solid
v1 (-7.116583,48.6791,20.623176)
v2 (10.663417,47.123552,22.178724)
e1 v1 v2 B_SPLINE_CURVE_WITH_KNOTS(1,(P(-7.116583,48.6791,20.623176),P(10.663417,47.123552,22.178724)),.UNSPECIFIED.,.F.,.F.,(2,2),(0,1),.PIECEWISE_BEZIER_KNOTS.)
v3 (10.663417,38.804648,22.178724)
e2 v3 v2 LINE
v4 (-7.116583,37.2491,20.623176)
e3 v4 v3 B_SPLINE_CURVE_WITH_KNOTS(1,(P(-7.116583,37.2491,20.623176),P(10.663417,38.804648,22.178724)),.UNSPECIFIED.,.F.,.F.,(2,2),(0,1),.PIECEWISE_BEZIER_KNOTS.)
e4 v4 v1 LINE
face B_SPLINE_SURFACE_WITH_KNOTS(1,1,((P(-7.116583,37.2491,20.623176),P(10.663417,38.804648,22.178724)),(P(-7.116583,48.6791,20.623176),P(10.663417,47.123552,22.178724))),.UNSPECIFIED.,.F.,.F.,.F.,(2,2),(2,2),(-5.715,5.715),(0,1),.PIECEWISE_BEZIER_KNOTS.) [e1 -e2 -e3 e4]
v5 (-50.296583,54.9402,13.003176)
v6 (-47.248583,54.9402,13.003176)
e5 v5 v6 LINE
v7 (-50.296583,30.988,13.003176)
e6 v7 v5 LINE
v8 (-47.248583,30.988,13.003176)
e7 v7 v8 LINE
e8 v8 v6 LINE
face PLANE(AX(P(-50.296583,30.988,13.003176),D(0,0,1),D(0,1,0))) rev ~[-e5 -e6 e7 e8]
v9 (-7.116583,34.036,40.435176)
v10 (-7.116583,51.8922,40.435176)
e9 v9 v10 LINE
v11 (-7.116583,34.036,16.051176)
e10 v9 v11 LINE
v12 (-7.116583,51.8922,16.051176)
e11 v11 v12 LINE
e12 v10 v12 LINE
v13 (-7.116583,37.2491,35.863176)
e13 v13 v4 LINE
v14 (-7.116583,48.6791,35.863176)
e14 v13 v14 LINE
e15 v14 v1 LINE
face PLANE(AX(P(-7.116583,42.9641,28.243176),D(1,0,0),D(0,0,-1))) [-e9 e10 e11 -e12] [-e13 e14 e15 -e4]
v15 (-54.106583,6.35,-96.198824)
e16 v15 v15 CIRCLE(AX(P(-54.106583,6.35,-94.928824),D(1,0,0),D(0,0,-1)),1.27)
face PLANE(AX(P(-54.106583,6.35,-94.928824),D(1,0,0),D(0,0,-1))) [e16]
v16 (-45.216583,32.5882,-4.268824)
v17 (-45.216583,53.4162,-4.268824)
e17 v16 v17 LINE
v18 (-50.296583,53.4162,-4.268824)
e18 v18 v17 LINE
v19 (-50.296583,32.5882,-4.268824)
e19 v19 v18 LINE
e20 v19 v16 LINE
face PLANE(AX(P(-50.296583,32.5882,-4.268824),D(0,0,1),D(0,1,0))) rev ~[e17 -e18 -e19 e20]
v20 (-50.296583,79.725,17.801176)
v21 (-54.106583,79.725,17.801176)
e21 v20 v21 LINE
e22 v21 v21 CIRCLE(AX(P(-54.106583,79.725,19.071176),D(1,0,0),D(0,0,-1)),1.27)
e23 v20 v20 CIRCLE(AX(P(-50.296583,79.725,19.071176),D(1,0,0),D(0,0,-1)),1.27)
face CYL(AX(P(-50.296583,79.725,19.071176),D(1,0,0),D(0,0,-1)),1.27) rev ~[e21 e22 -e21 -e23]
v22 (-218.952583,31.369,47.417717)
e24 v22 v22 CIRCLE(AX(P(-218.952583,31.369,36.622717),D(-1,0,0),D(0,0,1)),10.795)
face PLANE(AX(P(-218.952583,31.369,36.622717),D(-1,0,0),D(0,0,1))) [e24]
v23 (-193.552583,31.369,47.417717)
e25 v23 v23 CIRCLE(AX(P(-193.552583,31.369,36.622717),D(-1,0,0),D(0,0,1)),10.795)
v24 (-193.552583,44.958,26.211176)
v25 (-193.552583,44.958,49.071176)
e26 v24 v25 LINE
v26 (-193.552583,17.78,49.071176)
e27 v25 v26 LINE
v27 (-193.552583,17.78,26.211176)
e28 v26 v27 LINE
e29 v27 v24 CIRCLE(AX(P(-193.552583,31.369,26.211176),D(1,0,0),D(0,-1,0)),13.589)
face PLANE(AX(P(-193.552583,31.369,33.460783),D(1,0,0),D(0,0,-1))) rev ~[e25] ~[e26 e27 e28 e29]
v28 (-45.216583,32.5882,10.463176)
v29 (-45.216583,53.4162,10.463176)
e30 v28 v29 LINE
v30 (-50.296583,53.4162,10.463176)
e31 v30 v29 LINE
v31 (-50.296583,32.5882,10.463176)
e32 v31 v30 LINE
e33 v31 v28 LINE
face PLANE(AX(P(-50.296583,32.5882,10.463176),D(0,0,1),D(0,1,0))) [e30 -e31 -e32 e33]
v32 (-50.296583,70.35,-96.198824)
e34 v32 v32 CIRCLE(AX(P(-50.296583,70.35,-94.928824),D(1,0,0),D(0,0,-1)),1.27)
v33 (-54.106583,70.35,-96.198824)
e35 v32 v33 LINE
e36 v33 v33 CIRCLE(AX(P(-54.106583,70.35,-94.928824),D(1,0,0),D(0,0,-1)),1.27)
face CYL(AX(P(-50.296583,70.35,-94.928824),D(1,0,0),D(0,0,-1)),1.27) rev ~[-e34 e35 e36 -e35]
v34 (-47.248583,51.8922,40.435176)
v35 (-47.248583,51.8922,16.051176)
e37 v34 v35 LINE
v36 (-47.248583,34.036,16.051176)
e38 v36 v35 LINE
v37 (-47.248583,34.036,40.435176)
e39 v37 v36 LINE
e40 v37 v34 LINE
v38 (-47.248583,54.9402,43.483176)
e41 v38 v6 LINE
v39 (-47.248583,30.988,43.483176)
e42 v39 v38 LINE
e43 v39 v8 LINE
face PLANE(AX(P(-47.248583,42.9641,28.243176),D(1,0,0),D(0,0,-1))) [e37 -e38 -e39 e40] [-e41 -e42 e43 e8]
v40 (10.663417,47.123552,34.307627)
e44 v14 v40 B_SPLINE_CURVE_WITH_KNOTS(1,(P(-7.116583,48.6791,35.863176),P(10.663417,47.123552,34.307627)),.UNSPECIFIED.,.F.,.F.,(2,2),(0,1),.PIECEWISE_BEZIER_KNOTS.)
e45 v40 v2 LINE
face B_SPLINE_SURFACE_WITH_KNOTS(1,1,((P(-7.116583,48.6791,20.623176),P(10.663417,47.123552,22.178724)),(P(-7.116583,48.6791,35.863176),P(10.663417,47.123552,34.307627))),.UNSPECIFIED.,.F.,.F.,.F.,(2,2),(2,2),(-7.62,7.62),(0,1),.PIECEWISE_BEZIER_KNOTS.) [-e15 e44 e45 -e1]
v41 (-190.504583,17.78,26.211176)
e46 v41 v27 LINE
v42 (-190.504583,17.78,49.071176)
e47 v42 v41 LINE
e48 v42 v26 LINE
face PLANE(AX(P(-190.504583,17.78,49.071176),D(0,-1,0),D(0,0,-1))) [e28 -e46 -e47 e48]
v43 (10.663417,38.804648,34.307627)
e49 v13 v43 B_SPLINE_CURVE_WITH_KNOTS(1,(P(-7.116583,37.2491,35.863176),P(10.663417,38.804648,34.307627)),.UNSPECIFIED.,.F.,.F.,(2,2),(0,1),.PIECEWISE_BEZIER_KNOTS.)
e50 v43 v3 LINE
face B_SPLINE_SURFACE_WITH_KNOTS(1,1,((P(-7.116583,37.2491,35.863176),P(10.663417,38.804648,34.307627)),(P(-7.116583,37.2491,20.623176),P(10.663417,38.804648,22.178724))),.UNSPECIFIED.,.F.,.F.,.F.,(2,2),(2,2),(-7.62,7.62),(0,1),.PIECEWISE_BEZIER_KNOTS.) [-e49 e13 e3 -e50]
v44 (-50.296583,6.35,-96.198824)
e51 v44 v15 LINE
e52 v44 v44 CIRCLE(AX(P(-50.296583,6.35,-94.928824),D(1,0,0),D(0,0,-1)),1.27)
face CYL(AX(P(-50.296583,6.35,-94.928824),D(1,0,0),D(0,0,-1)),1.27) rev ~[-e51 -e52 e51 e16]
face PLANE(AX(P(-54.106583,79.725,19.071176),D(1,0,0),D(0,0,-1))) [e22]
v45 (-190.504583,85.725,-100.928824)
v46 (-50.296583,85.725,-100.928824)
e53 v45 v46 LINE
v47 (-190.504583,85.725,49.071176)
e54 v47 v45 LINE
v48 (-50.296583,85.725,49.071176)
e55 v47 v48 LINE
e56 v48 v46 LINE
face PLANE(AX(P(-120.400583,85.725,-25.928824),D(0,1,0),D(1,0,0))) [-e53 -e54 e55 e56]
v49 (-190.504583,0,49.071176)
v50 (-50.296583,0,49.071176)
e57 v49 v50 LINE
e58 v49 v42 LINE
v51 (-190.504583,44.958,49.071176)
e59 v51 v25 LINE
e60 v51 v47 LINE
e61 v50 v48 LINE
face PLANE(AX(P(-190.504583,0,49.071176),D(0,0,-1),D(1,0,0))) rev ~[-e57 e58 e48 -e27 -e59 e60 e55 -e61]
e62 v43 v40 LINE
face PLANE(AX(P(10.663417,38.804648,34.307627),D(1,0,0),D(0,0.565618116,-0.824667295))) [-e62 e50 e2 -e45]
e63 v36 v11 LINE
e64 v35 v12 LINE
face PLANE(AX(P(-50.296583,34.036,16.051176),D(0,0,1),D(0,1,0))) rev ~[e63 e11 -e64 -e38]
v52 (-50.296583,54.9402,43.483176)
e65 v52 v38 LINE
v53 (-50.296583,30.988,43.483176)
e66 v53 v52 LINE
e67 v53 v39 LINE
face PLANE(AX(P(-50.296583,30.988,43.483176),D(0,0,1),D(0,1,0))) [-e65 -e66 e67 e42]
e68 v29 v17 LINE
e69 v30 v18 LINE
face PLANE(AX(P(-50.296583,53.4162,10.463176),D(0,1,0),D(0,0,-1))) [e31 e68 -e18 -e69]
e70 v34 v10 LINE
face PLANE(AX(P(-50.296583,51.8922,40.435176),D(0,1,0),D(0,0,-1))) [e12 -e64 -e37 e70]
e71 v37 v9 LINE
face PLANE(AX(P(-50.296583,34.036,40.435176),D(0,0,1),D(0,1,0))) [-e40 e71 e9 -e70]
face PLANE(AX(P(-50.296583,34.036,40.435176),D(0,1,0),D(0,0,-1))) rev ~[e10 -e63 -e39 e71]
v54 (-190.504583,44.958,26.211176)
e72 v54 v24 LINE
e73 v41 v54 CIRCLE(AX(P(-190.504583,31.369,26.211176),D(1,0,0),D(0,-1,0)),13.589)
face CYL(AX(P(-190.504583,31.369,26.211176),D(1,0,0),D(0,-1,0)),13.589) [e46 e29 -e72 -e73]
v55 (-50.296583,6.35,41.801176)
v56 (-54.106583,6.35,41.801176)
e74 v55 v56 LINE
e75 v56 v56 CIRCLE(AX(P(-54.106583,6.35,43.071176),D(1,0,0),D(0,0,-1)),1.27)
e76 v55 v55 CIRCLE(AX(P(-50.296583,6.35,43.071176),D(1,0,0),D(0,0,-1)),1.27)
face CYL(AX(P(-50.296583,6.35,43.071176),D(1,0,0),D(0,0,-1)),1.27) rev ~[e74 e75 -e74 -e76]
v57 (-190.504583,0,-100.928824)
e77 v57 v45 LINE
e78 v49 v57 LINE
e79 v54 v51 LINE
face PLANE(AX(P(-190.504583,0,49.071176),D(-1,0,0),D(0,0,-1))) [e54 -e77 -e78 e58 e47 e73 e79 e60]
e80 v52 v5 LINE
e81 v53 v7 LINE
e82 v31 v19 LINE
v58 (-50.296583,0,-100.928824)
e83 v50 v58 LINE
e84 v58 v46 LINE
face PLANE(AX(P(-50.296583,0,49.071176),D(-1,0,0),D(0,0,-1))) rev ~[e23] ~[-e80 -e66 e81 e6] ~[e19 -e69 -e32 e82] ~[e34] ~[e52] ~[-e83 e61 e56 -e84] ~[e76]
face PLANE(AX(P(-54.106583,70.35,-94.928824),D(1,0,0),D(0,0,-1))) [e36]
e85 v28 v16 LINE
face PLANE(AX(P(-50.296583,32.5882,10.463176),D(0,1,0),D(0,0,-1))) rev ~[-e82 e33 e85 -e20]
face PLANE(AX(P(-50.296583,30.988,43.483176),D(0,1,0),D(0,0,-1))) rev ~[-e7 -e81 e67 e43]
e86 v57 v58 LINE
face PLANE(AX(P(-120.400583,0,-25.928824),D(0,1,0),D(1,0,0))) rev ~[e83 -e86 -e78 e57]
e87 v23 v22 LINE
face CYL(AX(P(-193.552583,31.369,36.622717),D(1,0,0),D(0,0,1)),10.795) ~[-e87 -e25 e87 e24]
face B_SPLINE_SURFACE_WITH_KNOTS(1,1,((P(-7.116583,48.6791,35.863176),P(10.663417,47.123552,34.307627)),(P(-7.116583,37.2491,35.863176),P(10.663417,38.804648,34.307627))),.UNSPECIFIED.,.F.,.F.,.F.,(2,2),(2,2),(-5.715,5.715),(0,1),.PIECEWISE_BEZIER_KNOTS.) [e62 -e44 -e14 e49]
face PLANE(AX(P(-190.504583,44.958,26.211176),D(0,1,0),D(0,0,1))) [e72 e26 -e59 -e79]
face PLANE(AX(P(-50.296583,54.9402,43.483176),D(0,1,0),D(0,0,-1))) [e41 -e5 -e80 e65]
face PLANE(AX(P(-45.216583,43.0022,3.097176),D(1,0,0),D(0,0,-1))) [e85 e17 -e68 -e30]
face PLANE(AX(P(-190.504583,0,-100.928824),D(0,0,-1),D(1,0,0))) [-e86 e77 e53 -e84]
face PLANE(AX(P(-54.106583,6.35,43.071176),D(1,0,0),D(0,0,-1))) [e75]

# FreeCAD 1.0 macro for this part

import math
import FreeCAD as App
import Part
import Sketcher
Q = App.Units.Quantity

doc = App.newDocument("Part")
params = doc.addObject("Spreadsheet::Sheet", "Params")
for row, (alias, value) in enumerate([
    ("sketch1_width", "5.52 in"),
    ("pad1_length", "3.375 in"),
    ("sketch2_height", "1.2 in"),
    ("sketch2_height2", "0.96 in"),
    ("sketch2_width", "0.943 in"),
    ("sketch2_width2", "0.703 in"),
    ("pad2_length", "0.12 in"),
    ("sketch3_width", "0.82 in"),
    ("sketch3_height", "0.58 in"),
    ("pad3_length", "0.2 in"),
    ("sketch4_diameter", "0.1 in"),
    ("pocket1_length", "0.15 in"),
    ("sketch5_height", "0.9 in"),
    ("sketch5_radius", "0.535 in"),
    ("pad4_length", "0.12 in"),
    ("sketch6_diameter", "0.85 in"),
    ("pad5_length", "1 in"),
    ("sketch7_height", "0.96 in"),
    ("sketch7_width", "0.703 in"),
    ("pad6_length", "1.7 in"),
    ("sketch8_height", "0.6 in"),
    ("sketch8_width", "0.45 in"),
    ("pad7_length", "0.7 in"),
    ("pad7_taper", "-5 deg"),
], start=1):
    params.set(f"A{row}", alias)
    params.set(f"B{row}", "=" + value)
    params.setAlias(f"B{row}", alias)

body = doc.addObject("PartDesign::Body", "Body")

sketch1 = body.newObject("Sketcher::SketchObject", "Sketch")
sketch1.AttachmentSupport = (doc.getObject("XZ_Plane"), [""])
sketch1.MapMode = "FlatFace"
sketch1.addGeometry([
    Part.LineSegment(App.Vector(-191, -101, 0), App.Vector(-191, 49, 0)),
    Part.LineSegment(App.Vector(-191, 49, 0), App.Vector(-50, 49, 0)),
    Part.LineSegment(App.Vector(-50, 49, 0), App.Vector(-50, -101, 0)),
    Part.LineSegment(App.Vector(-50, -101, 0), App.Vector(-191, -101, 0)),
], False)
sketch1.addConstraint([
    Sketcher.Constraint("Coincident", 0, 2, 1, 1),
    Sketcher.Constraint("Coincident", 1, 2, 2, 1),
    Sketcher.Constraint("Coincident", 2, 2, 3, 1),
    Sketcher.Constraint("Coincident", 3, 2, 0, 1),
    Sketcher.Constraint("Vertical", 0),
    Sketcher.Constraint("Horizontal", 1),
    Sketcher.Constraint("Vertical", 2),
    Sketcher.Constraint("Horizontal", 3),
    Sketcher.Constraint("DistanceX", 1, 1, 1, 2, Q("5.52 in")),
    Sketcher.Constraint("DistanceY", 0, 1, 0, 2, 150.0),
    Sketcher.Constraint("DistanceX", 0, 2, -1, 1, 190.504583),
    Sketcher.Constraint("DistanceY", -1, 1, 0, 2, 49.071176),
])
sketch1.setExpression("Constraints[8]", "Params.sketch1_width")
pad1 = body.newObject("PartDesign::Pad", "Pad")
pad1.Profile = sketch1
pad1.setExpression("Length", "Params.pad1_length")
pad1.Reversed = True

sketch2 = body.newObject("Sketcher::SketchObject", "Sketch001")
sketch2.AttachmentSupport = (doc.getObject("YZ_Plane"), [""])
sketch2.MapMode = "FlatFace"
sketch2.AttachmentOffset = App.Placement(App.Vector(0, 0, -50.296583), App.Rotation())
sketch2.addGeometry([
    Part.LineSegment(App.Vector(55, 43, 0), App.Vector(31, 43, 0)),
    Part.LineSegment(App.Vector(31, 43, 0), App.Vector(31, 13, 0)),
    Part.LineSegment(App.Vector(31, 13, 0), App.Vector(55, 13, 0)),
    Part.LineSegment(App.Vector(55, 13, 0), App.Vector(55, 43, 0)),
    Part.LineSegment(App.Vector(34, 16, 0), App.Vector(34, 40, 0)),
    Part.LineSegment(App.Vector(34, 40, 0), App.Vector(52, 40, 0)),
    Part.LineSegment(App.Vector(52, 40, 0), App.Vector(52, 16, 0)),
    Part.LineSegment(App.Vector(52, 16, 0), App.Vector(34, 16, 0)),
], False)
sketch2.addConstraint([
    Sketcher.Constraint("Coincident", 0, 2, 1, 1),
    Sketcher.Constraint("Coincident", 1, 2, 2, 1),
    Sketcher.Constraint("Coincident", 2, 2, 3, 1),
    Sketcher.Constraint("Coincident", 3, 2, 0, 1),
    Sketcher.Constraint("Coincident", 4, 2, 5, 1),
    Sketcher.Constraint("Coincident", 5, 2, 6, 1),
    Sketcher.Constraint("Coincident", 6, 2, 7, 1),
    Sketcher.Constraint("Coincident", 7, 2, 4, 1),
    Sketcher.Constraint("Horizontal", 0),
    Sketcher.Constraint("Vertical", 1),
    Sketcher.Constraint("Horizontal", 2),
    Sketcher.Constraint("Vertical", 3),
    Sketcher.Constraint("Vertical", 4),
    Sketcher.Constraint("Horizontal", 5),
    Sketcher.Constraint("Vertical", 6),
    Sketcher.Constraint("Horizontal", 7),
    Sketcher.Constraint("DistanceY", 1, 2, 1, 1, Q("1.2 in")),
    Sketcher.Constraint("DistanceY", 4, 1, 4, 2, Q("0.96 in")),
    Sketcher.Constraint("DistanceX", 0, 2, 0, 1, Q("0.943 in")),
    Sketcher.Constraint("DistanceX", 5, 1, 5, 2, Q("0.703 in")),
    Sketcher.Constraint("DistanceX", -1, 1, 0, 2, Q("1.22 in")),
    Sketcher.Constraint("DistanceX", -1, 1, 4, 2, Q("1.34 in")),
    Sketcher.Constraint("DistanceY", 4, 2, 0, 2, Q("0.12 in")),
    Sketcher.Constraint("DistanceY", -1, 1, 0, 2, 43.483176),
])
sketch2.setExpression("Constraints[16]", "Params.sketch2_height")
sketch2.setExpression("Constraints[17]", "Params.sketch2_height2")
sketch2.setExpression("Constraints[18]", "Params.sketch2_width")
sketch2.setExpression("Constraints[19]", "Params.sketch2_width2")
pad2 = body.newObject("PartDesign::Pad", "Pad001")
pad2.Profile = sketch2
pad2.setExpression("Length", "Params.pad2_length")

sketch3 = body.newObject("Sketcher::SketchObject", "Sketch002")
sketch3.AttachmentSupport = (doc.getObject("YZ_Plane"), [""])
sketch3.MapMode = "FlatFace"
sketch3.AttachmentOffset = App.Placement(App.Vector(0, 0, -50.296583), App.Rotation())
sketch3.addGeometry([
    Part.LineSegment(App.Vector(53, 10, 0), App.Vector(33, 10, 0)),
    Part.LineSegment(App.Vector(33, 10, 0), App.Vector(33, -4, 0)),
    Part.LineSegment(App.Vector(33, -4, 0), App.Vector(53, -4, 0)),
    Part.LineSegment(App.Vector(53, -4, 0), App.Vector(53, 10, 0)),
], False)
sketch3.addConstraint([
    Sketcher.Constraint("Coincident", 0, 2, 1, 1),
    Sketcher.Constraint("Coincident", 1, 2, 2, 1),
    Sketcher.Constraint("Coincident", 2, 2, 3, 1),
    Sketcher.Constraint("Coincident", 3, 2, 0, 1),
    Sketcher.Constraint("Horizontal", 0),
    Sketcher.Constraint("Vertical", 1),
    Sketcher.Constraint("Horizontal", 2),
    Sketcher.Constraint("Vertical", 3),
    Sketcher.Constraint("DistanceX", 0, 2, 0, 1, Q("0.82 in")),
    Sketcher.Constraint("DistanceY", 1, 2, 1, 1, Q("0.58 in")),
    Sketcher.Constraint("DistanceX", -1, 1, 0, 2, Q("1.283 in")),
    Sketcher.Constraint("DistanceY", -1, 1, 0, 2, 10.463176),
])
sketch3.setExpression("Constraints[8]", "Params.sketch3_width")
sketch3.setExpression("Constraints[9]", "Params.sketch3_height")
pad3 = body.newObject("PartDesign::Pad", "Pad002")
pad3.Profile = sketch3
pad3.setExpression("Length", "Params.pad3_length")

sketch4 = body.newObject("Sketcher::SketchObject", "Sketch003")
sketch4.AttachmentSupport = (doc.getObject("YZ_Plane"), [""])
sketch4.MapMode = "FlatFace"
sketch4.AttachmentOffset = App.Placement(App.Vector(0, 0, -50.296583), App.Rotation())
sketch4.addGeometry([
    Part.Circle(App.Vector(6.3, 43.1, 0), App.Vector(0, 0, 1), 1.3),
    Part.Circle(App.Vector(6.3, -94.9, 0), App.Vector(0, 0, 1), 1.3),
    Part.Circle(App.Vector(70.3, -94.9, 0), App.Vector(0, 0, 1), 1.3),
    Part.Circle(App.Vector(79.7, 19.1, 0), App.Vector(0, 0, 1), 1.3),
], False)
sketch4.addConstraint([
    Sketcher.Constraint("Equal", 0, 1),
    Sketcher.Constraint("Equal", 1, 2),
    Sketcher.Constraint("Equal", 2, 3),
    Sketcher.Constraint("Horizontal", 1, 3, 2, 3),
    Sketcher.Constraint("Vertical", 0, 3, 1, 3),
    Sketcher.Constraint("Diameter", 0, Q("0.1 in")),
    Sketcher.Constraint("DistanceX", -1, 1, 0, 3, Q("0.25 in")),
    Sketcher.Constraint("DistanceX", -1, 1, 2, 3, 70.35),
    Sketcher.Constraint("DistanceX", -1, 1, 3, 3, 79.725),
    Sketcher.Constraint("DistanceY", 1, 3, 0, 3, 138.0),
    Sketcher.Constraint("DistanceY", 3, 3, 0, 3, 24.0),
    Sketcher.Constraint("DistanceY", -1, 1, 0, 3, 43.071176),
])
sketch4.setExpression("Constraints[5]", "Params.sketch4_diameter")
pocket1 = body.newObject("PartDesign::Pocket", "Pocket")
pocket1.Profile = sketch4
pocket1.setExpression("Length", "Params.pocket1_length")

sketch5 = body.newObject("Sketcher::SketchObject", "Sketch004")
sketch5.AttachmentSupport = (doc.getObject("YZ_Plane"), [""])
sketch5.MapMode = "FlatFace"
sketch5.AttachmentOffset = App.Placement(App.Vector(0, 0, -190.504583), App.Rotation())
sketch5.addGeometry([
    Part.LineSegment(App.Vector(18, 26, 0), App.Vector(18, 49, 0)),
    Part.LineSegment(App.Vector(18, 49, 0), App.Vector(45, 49, 0)),
    Part.LineSegment(App.Vector(45, 49, 0), App.Vector(45, 26, 0)),
    Part.ArcOfCircle(Part.Circle(App.Vector(31, 26, 0), App.Vector(0, 0, 1), 14), math.radians(180), math.radians(360)),
], False)
sketch5.addConstraint([
    Sketcher.Constraint("Coincident", 0, 2, 1, 1),
    Sketcher.Constraint("Coincident", 1, 2, 2, 1),
    Sketcher.Constraint("Tangent", 2, 2, 3, 2),
    Sketcher.Constraint("Tangent", 3, 1, 0, 1),
    Sketcher.Constraint("Vertical", 0),
    Sketcher.Constraint("Horizontal", 1),
    Sketcher.Constraint("Vertical", 2),
    Sketcher.Constraint("DistanceY", 0, 1, 0, 2, Q("0.9 in")),
    Sketcher.Constraint("Radius", 3, Q("0.535 in")),
    Sketcher.Constraint("DistanceX", -1, 1, 0, 2, Q("0.7 in")),
    Sketcher.Constraint("DistanceY", -1, 1, 3, 3, 26.211176),
])
sketch5.setExpression("Constraints[7]", "Params.sketch5_height")
sketch5.setExpression("Constraints[8]", "Params.sketch5_radius")
pad4 = body.newObject("PartDesign::Pad", "Pad003")
pad4.Profile = sketch5
pad4.setExpression("Length", "Params.pad4_length")
pad4.Reversed = True

sketch6 = body.newObject("Sketcher::SketchObject", "Sketch005")
sketch6.AttachmentSupport = (doc.getObject("YZ_Plane"), [""])
sketch6.MapMode = "FlatFace"
sketch6.AttachmentOffset = App.Placement(App.Vector(0, 0, -193.552583), App.Rotation())
sketch6.addGeometry(Part.Circle(App.Vector(31, 37, 0), App.Vector(0, 0, 1), 11), False)
sketch6.addConstraint([
    Sketcher.Constraint("Diameter", 0, Q("0.85 in")),
    Sketcher.Constraint("DistanceX", -1, 1, 0, 3, Q("1.235 in")),
    Sketcher.Constraint("DistanceY", -1, 1, 0, 3, 36.622717),
])
sketch6.setExpression("Constraints[0]", "Params.sketch6_diameter")
pad5 = body.newObject("PartDesign::Pad", "Pad004")
pad5.Profile = sketch6
pad5.setExpression("Length", "Params.pad5_length")
pad5.Reversed = True

sketch7 = body.newObject("Sketcher::SketchObject", "Sketch006")
sketch7.AttachmentSupport = (doc.getObject("YZ_Plane"), [""])
sketch7.MapMode = "FlatFace"
sketch7.AttachmentOffset = App.Placement(App.Vector(0, 0, -50.296583), App.Rotation())
sketch7.addGeometry([
    Part.LineSegment(App.Vector(52, 40, 0), App.Vector(34, 40, 0)),
    Part.LineSegment(App.Vector(34, 40, 0), App.Vector(34, 16, 0)),
    Part.LineSegment(App.Vector(34, 16, 0), App.Vector(52, 16, 0)),
    Part.LineSegment(App.Vector(52, 16, 0), App.Vector(52, 40, 0)),
], False)
sketch7.addConstraint([
    Sketcher.Constraint("Coincident", 0, 2, 1, 1),
    Sketcher.Constraint("Coincident", 1, 2, 2, 1),
    Sketcher.Constraint("Coincident", 2, 2, 3, 1),
    Sketcher.Constraint("Coincident", 3, 2, 0, 1),
    Sketcher.Constraint("Horizontal", 0),
    Sketcher.Constraint("Vertical", 1),
    Sketcher.Constraint("Horizontal", 2),
    Sketcher.Constraint("Vertical", 3),
    Sketcher.Constraint("DistanceY", 1, 2, 1, 1, Q("0.96 in")),
    Sketcher.Constraint("DistanceX", 0, 2, 0, 1, Q("0.703 in")),
    Sketcher.Constraint("DistanceX", -1, 1, 0, 2, Q("1.34 in")),
    Sketcher.Constraint("DistanceY", -1, 1, 0, 2, 40.435176),
])
sketch7.setExpression("Constraints[8]", "Params.sketch7_height")
sketch7.setExpression("Constraints[9]", "Params.sketch7_width")
pad6 = body.newObject("PartDesign::Pad", "Pad005")
pad6.Profile = sketch7
pad6.setExpression("Length", "Params.pad6_length")

sketch8 = body.newObject("Sketcher::SketchObject", "Sketch007")
sketch8.AttachmentSupport = (doc.getObject("YZ_Plane"), [""])
sketch8.MapMode = "FlatFace"
sketch8.AttachmentOffset = App.Placement(App.Vector(0, 0, -7.116583), App.Rotation())
sketch8.addGeometry([
    Part.LineSegment(App.Vector(49, 36, 0), App.Vector(37, 36, 0)),
    Part.LineSegment(App.Vector(37, 36, 0), App.Vector(37, 21, 0)),
    Part.LineSegment(App.Vector(37, 21, 0), App.Vector(49, 21, 0)),
    Part.LineSegment(App.Vector(49, 21, 0), App.Vector(49, 36, 0)),
], False)
sketch8.addConstraint([
    Sketcher.Constraint("Coincident", 0, 2, 1, 1),
    Sketcher.Constraint("Coincident", 1, 2, 2, 1),
    Sketcher.Constraint("Coincident", 2, 2, 3, 1),
    Sketcher.Constraint("Coincident", 3, 2, 0, 1),
    Sketcher.Constraint("Horizontal", 0),
    Sketcher.Constraint("Vertical", 1),
    Sketcher.Constraint("Horizontal", 2),
    Sketcher.Constraint("Vertical", 3),
    Sketcher.Constraint("DistanceY", 1, 2, 1, 1, Q("0.6 in")),
    Sketcher.Constraint("DistanceX", 0, 2, 0, 1, Q("0.45 in")),
    Sketcher.Constraint("DistanceX", -1, 1, 0, 2, Q("1.4665 in")),
    Sketcher.Constraint("DistanceY", -1, 1, 0, 2, 35.863176),
])
sketch8.setExpression("Constraints[8]", "Params.sketch8_height")
sketch8.setExpression("Constraints[9]", "Params.sketch8_width")
pad7 = body.newObject("PartDesign::Pad", "Pad006")
pad7.Profile = sketch8
pad7.setExpression("Length", "Params.pad7_length")
pad7.setExpression("TaperAngle", "Params.pad7_taper")

doc.recompute()
